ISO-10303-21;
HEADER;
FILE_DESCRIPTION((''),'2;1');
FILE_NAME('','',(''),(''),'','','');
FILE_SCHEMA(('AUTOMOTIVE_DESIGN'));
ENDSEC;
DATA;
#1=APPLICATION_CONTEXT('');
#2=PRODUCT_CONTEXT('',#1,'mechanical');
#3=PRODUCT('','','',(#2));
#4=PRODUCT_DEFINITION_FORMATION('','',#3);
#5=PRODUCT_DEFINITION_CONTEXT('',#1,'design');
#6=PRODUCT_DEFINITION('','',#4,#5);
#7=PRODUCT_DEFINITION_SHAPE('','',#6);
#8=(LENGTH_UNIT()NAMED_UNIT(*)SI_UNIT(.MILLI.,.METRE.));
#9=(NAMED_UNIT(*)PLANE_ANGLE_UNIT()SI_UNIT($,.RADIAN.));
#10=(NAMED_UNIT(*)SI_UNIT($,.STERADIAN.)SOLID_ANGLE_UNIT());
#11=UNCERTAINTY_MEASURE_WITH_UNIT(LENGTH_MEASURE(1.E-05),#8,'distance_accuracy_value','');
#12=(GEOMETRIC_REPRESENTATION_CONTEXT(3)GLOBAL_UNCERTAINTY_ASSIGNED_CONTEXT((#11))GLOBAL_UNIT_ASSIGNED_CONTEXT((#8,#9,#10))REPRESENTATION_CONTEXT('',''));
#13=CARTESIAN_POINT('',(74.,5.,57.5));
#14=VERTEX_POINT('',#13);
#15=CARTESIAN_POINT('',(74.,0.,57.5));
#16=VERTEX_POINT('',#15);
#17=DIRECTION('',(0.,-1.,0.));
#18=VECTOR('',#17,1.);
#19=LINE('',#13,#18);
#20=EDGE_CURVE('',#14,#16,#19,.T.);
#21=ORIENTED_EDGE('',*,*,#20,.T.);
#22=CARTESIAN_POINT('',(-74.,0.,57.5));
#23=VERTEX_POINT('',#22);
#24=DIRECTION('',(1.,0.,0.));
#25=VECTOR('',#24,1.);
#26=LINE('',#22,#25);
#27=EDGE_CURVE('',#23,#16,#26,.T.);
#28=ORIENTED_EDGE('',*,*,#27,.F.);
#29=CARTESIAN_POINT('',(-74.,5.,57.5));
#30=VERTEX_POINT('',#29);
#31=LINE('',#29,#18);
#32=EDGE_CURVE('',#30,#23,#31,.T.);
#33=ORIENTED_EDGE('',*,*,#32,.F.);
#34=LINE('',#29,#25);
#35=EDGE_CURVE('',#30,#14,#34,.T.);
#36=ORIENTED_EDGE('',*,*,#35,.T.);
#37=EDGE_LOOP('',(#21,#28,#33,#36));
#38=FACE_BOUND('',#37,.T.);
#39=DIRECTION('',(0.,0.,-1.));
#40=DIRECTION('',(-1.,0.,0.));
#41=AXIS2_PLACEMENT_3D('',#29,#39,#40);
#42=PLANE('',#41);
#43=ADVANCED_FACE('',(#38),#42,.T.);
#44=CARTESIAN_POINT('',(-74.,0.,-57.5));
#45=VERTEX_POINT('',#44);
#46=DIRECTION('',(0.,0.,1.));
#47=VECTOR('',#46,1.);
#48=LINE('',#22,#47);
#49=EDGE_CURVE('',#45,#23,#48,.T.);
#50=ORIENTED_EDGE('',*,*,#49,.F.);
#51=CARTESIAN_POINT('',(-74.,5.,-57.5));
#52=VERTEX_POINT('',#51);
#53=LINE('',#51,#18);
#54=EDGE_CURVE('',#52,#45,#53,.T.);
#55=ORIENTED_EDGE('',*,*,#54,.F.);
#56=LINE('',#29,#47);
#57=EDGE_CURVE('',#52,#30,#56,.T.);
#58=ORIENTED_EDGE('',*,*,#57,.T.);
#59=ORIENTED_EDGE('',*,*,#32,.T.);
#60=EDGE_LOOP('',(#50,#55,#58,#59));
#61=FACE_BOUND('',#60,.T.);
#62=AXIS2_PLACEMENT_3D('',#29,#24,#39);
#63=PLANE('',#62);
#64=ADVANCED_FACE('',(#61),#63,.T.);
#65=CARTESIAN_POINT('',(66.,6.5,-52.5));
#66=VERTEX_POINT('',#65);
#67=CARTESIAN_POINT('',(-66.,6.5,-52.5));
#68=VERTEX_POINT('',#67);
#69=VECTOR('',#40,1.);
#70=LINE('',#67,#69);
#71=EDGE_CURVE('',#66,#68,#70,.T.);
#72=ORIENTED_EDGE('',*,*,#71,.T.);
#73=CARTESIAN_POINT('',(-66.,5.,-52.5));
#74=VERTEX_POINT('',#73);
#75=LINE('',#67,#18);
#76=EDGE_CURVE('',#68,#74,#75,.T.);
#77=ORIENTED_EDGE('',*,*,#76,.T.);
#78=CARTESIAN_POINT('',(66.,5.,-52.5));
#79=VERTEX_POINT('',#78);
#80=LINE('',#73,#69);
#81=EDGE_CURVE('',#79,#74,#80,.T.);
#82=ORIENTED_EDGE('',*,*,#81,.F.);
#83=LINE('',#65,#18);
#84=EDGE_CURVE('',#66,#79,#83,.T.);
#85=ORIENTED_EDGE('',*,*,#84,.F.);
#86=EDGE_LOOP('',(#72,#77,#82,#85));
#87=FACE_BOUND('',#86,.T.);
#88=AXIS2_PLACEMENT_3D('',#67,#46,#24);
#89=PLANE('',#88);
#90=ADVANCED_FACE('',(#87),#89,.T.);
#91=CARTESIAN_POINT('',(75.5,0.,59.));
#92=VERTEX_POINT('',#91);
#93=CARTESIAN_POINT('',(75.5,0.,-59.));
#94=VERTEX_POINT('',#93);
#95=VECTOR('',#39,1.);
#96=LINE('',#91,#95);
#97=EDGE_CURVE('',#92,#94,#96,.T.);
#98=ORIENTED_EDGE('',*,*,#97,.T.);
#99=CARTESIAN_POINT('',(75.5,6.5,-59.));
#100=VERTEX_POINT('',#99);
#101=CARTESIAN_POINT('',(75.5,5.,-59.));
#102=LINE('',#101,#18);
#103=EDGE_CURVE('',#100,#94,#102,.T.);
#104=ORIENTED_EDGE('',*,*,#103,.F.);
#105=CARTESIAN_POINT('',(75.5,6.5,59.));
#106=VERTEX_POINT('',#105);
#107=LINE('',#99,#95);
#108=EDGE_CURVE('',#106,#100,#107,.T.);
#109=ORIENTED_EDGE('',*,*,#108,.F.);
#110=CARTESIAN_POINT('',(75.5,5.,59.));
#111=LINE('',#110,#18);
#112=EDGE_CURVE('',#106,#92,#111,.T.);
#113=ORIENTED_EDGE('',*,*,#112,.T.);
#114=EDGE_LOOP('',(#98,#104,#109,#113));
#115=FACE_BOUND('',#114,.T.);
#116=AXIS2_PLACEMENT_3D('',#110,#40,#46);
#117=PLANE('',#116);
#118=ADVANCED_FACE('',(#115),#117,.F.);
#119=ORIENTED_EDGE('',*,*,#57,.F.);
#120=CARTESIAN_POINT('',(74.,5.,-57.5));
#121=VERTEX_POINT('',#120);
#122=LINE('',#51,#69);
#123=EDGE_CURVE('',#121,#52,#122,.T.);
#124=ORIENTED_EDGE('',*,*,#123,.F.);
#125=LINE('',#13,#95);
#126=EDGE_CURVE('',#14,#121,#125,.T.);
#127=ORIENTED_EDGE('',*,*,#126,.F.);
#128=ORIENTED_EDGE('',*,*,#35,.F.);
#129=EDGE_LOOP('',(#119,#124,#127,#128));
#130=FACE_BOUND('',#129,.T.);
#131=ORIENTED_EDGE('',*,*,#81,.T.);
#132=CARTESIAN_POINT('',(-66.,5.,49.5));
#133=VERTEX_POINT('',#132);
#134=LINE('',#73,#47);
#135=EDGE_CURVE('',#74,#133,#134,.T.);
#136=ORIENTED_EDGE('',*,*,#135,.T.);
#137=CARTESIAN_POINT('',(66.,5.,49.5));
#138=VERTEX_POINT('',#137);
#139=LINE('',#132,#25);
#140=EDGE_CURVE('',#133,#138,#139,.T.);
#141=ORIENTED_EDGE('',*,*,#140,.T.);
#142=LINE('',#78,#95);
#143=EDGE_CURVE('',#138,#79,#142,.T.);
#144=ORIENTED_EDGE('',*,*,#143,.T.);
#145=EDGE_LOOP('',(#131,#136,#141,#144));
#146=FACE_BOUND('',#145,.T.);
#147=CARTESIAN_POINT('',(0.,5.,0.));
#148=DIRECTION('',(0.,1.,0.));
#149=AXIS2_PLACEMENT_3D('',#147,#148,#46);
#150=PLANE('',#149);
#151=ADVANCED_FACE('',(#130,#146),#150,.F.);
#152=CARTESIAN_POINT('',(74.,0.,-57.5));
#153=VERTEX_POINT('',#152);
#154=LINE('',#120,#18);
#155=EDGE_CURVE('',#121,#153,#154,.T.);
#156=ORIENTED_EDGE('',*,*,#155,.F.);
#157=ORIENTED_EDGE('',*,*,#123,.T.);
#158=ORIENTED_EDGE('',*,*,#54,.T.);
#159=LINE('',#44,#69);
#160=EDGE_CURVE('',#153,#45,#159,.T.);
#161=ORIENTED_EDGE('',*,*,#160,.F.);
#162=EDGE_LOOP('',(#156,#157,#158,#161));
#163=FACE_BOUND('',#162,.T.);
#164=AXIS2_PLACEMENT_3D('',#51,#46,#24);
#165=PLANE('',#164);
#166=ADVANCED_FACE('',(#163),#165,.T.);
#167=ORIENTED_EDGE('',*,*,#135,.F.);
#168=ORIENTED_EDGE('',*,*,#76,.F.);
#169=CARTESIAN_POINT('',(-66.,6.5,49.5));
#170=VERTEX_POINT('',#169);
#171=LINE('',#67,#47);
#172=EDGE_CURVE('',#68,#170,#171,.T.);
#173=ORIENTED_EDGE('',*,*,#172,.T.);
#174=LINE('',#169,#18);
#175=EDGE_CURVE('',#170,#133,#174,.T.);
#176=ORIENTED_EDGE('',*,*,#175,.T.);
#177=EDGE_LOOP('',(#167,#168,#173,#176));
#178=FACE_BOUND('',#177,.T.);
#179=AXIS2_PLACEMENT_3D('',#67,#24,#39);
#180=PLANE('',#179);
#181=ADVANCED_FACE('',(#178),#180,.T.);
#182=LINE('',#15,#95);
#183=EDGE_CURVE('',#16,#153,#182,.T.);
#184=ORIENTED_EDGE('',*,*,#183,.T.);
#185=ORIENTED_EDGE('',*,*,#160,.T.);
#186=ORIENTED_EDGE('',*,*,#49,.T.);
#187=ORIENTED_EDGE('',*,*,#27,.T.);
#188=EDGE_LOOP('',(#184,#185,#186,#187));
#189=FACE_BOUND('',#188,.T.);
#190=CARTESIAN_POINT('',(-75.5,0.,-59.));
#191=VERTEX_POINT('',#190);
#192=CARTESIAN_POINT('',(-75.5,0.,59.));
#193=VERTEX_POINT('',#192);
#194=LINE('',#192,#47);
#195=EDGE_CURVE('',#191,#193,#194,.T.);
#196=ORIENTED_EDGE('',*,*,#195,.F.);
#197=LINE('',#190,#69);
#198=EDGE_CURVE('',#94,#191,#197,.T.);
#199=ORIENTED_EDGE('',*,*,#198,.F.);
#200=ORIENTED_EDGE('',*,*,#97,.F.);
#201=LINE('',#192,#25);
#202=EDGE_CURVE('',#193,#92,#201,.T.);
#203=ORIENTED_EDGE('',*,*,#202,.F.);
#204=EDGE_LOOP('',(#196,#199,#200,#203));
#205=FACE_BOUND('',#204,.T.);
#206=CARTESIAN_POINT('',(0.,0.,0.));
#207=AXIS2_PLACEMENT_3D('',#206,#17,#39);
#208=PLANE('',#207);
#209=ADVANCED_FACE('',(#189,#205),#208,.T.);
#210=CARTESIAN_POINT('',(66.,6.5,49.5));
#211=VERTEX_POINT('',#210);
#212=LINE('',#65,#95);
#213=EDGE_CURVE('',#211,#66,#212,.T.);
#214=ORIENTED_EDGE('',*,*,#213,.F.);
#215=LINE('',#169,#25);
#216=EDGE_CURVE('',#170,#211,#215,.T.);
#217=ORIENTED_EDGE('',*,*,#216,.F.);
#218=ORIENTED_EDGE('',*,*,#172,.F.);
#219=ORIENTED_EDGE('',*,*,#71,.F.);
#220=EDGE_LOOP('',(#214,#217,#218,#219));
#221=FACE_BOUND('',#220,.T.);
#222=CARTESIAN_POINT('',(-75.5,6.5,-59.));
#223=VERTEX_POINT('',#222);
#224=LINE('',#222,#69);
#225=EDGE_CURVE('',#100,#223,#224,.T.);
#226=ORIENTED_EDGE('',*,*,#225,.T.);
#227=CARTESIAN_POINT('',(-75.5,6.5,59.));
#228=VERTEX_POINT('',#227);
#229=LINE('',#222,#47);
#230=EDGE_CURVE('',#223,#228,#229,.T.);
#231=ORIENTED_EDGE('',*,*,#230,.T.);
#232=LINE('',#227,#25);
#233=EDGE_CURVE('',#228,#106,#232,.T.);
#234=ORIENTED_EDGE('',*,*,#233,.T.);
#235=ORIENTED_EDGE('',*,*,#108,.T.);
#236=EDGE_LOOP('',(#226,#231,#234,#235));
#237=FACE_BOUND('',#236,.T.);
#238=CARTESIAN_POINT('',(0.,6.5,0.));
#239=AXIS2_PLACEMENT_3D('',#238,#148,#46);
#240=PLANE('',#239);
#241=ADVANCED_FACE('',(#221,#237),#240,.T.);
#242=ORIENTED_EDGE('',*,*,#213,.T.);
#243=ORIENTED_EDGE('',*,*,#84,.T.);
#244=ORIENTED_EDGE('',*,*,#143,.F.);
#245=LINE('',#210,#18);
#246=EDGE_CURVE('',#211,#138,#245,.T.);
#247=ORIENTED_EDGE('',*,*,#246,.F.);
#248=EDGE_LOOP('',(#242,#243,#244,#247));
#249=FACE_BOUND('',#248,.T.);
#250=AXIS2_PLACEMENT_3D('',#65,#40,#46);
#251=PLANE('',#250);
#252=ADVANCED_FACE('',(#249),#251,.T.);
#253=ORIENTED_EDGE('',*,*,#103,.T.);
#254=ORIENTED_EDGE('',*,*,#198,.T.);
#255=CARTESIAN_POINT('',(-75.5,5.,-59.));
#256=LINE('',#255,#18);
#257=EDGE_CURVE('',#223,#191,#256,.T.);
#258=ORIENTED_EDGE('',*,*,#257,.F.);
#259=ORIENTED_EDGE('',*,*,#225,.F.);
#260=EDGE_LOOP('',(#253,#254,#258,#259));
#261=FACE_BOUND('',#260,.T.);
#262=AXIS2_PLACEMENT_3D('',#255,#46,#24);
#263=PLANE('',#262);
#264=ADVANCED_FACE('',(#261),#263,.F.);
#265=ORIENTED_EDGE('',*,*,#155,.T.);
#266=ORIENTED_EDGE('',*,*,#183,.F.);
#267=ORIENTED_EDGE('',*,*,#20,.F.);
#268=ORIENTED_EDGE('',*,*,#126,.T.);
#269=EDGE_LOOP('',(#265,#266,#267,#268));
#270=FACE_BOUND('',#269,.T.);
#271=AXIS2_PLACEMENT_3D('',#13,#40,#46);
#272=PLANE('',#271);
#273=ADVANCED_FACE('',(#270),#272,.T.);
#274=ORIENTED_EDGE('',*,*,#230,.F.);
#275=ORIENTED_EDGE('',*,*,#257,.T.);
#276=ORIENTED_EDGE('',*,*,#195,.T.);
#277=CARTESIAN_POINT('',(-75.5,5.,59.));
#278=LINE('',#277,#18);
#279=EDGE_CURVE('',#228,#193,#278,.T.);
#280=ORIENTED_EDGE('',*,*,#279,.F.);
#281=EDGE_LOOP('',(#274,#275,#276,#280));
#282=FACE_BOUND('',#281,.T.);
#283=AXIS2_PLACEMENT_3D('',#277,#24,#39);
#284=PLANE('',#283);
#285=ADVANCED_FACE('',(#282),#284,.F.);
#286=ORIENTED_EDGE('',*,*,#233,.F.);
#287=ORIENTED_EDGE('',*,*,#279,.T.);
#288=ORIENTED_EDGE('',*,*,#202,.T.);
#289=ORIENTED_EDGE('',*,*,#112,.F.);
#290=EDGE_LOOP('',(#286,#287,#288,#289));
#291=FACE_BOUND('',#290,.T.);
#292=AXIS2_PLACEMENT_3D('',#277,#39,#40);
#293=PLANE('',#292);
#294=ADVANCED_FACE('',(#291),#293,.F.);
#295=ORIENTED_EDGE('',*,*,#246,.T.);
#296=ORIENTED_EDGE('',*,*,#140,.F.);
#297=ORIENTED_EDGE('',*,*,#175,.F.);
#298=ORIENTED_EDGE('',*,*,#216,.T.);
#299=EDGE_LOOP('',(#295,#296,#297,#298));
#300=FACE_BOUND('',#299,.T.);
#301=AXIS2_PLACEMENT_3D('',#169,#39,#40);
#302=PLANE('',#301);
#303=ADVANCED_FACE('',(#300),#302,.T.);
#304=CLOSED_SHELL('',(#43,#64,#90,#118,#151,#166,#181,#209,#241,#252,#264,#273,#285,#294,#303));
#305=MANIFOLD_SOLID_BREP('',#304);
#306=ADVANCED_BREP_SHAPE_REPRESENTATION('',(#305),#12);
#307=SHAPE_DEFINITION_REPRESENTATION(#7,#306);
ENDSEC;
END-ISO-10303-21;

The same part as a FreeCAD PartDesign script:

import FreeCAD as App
import Part
import Sketcher

V = App.Vector
Q = App.Units.Quantity


def add_polygon(sketch, points):
    """Adds a closed chain of lines whose ends are joined by coincident constraints."""
    first, n = sketch.GeometryCount, len(points)
    for a, b in zip(points, points[1:] + points[:1]):
        sketch.addGeometry(Part.LineSegment(App.Vector(*a, 0), App.Vector(*b, 0)), False)
    for i in range(n):
        sketch.addConstraint(Sketcher.Constraint("Coincident", first + i, 2, first + (i + 1) % n, 1))

doc = App.newDocument("Part")
params = doc.addObject("Spreadsheet::Sheet", "Params")
for row, (alias, value) in enumerate([
    ("sketch1_width", "151 mm"),
    ("sketch1_width2", "148 mm"),
    ("sketch1_height", "118 mm"),
    ("sketch1_height2", "115 mm"),
    ("pad1_length", "5 mm"),
    ("sketch2_width", "151 mm"),
    ("sketch2_width2", "132 mm"),
    ("sketch2_height", "118 mm"),
    ("sketch2_height2", "102 mm"),
    ("pad2_length", "1.5 mm"),
], start=1):
    params.set(f"A{row}", alias)
    params.set(f"B{row}", "=" + value)
    params.setAlias(f"B{row}", alias)

body = doc.addObject("PartDesign::Body", "Body")

# Sketch on XZ plane
sketch1 = body.newObject("Sketcher::SketchObject", "Sketch")
sketch1.AttachmentSupport = (doc.getObject("XZ_Plane"), [""])
sketch1.MapMode = "FlatFace"
add_polygon(sketch1, [(-76, -59), (-76, 59), (76, 59), (76, -59)])  # lines 0-3
add_polygon(sketch1, [(74, 58), (-74, 58), (-74, -58), (74, -58)])  # lines 4-7
sketch1.addConstraint(Sketcher.Constraint("Vertical", 0))
sketch1.addConstraint(Sketcher.Constraint("Horizontal", 1))
sketch1.addConstraint(Sketcher.Constraint("Vertical", 2))
sketch1.addConstraint(Sketcher.Constraint("Horizontal", 3))
sketch1.addConstraint(Sketcher.Constraint("Horizontal", 4))
sketch1.addConstraint(Sketcher.Constraint("Vertical", 5))
sketch1.addConstraint(Sketcher.Constraint("Horizontal", 6))
sketch1.addConstraint(Sketcher.Constraint("Vertical", 7))
sketch1.addConstraint(Sketcher.Constraint("Symmetric", 0, 2, 2, 2, -1, 1))
sketch1.addConstraint(Sketcher.Constraint("Symmetric", 4, 2, 6, 2, -1, 1))
sketch1.addConstraint(Sketcher.Constraint("DistanceX", 1, 1, 1, 2, Q("151 mm")))
sketch1.addConstraint(Sketcher.Constraint("DistanceX", 4, 2, 4, 1, Q("148 mm")))
sketch1.addConstraint(Sketcher.Constraint("DistanceY", 0, 1, 0, 2, Q("118 mm")))
sketch1.addConstraint(Sketcher.Constraint("DistanceY", 5, 2, 5, 1, Q("115 mm")))
sketch1.setExpression("Constraints[18]", "Params.sketch1_width")
sketch1.setExpression("Constraints[19]", "Params.sketch1_width2")
sketch1.setExpression("Constraints[20]", "Params.sketch1_height")
sketch1.setExpression("Constraints[21]", "Params.sketch1_height2")
pad1 = body.newObject("PartDesign::Pad", "Pad")
pad1.Profile = sketch1
pad1.setExpression("Length", "Params.pad1_length")
pad1.Reversed = True

# Sketch on XZ plane
sketch2 = body.newObject("Sketcher::SketchObject", "Sketch001")
sketch2.AttachmentSupport = (doc.getObject("XZ_Plane"), [""])
sketch2.MapMode = "FlatFace"
sketch2.AttachmentOffset = App.Placement(V(0, 0, -5), App.Rotation())
add_polygon(sketch2, [(-76, -59), (-76, 59), (76, 59), (76, -59)])  # lines 0-3
add_polygon(sketch2, [(66, 50), (-66, 50), (-66, -52), (66, -52)])  # lines 4-7
sketch2.addConstraint(Sketcher.Constraint("Vertical", 0))
sketch2.addConstraint(Sketcher.Constraint("Horizontal", 1))
sketch2.addConstraint(Sketcher.Constraint("Vertical", 2))
sketch2.addConstraint(Sketcher.Constraint("Horizontal", 3))
sketch2.addConstraint(Sketcher.Constraint("Horizontal", 4))
sketch2.addConstraint(Sketcher.Constraint("Vertical", 5))
sketch2.addConstraint(Sketcher.Constraint("Horizontal", 6))
sketch2.addConstraint(Sketcher.Constraint("Vertical", 7))
sketch2.addConstraint(Sketcher.Constraint("Symmetric", 0, 2, 2, 2, -1, 1))
sketch2.addConstraint(Sketcher.Constraint("DistanceX", 1, 1, 1, 2, Q("151 mm")))
sketch2.addConstraint(Sketcher.Constraint("DistanceX", 4, 2, 4, 1, Q("132 mm")))
sketch2.addConstraint(Sketcher.Constraint("DistanceY", 0, 1, 0, 2, Q("118 mm")))
sketch2.addConstraint(Sketcher.Constraint("DistanceY", 5, 2, 5, 1, Q("102 mm")))
sketch2.addConstraint(Sketcher.Constraint("DistanceX", 4, 2, -1, 1, Q("66 mm")))
sketch2.addConstraint(Sketcher.Constraint("DistanceY", -1, 1, 4, 2, Q("49.5 mm")))
sketch2.setExpression("Constraints[17]", "Params.sketch2_width")
sketch2.setExpression("Constraints[18]", "Params.sketch2_width2")
sketch2.setExpression("Constraints[19]", "Params.sketch2_height")
sketch2.setExpression("Constraints[20]", "Params.sketch2_height2")
pad2 = body.newObject("PartDesign::Pad", "Pad001")
pad2.Profile = sketch2
pad2.setExpression("Length", "Params.pad2_length")
pad2.Reversed = True

doc.recompute()
